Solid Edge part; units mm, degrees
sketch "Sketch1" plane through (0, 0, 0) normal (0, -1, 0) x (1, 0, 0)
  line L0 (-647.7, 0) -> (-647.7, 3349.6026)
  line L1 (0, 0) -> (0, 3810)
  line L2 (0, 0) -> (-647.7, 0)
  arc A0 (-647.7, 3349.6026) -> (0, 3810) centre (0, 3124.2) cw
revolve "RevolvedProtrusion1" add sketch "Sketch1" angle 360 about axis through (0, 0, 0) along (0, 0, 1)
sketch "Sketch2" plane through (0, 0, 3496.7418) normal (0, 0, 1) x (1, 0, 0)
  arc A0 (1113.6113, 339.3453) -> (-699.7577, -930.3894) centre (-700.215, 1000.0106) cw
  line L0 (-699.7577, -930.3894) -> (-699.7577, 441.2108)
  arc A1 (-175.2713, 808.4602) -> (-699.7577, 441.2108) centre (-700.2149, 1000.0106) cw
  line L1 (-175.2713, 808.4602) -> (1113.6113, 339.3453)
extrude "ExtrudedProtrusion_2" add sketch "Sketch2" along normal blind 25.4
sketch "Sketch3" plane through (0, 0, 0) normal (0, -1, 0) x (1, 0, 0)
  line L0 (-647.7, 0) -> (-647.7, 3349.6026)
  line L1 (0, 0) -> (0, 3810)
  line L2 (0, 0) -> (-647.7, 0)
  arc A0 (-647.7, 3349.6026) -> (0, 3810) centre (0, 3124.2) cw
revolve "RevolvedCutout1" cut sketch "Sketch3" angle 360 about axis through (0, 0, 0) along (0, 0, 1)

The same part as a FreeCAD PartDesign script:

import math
import FreeCAD as App
import Part
import Sketcher
from FreeCAD import Vector
Q = App.Units.Quantity

doc = App.newDocument("Part")
params = doc.addObject("Spreadsheet::Sheet", "Params")
for row, (alias, value) in enumerate([
    ("sketch1_radius", "27 in"),
    ("sketch1_height", "150 in"),
    ("sketch1_width", "25.5 in"),
    ("revolution_angle", "360 deg"),
    ("sketch2_radius", "76 in"),
    ("sketch2_radius2", "22 in"),
    ("pad1_length", "1 in"),
    ("sketch3_radius", "27 in"),
    ("sketch3_height", "150 in"),
    ("sketch3_width", "25.5 in"),
    ("groove_angle", "360 deg"),
], start=1):
    params.set(f"A{row}", alias)
    params.set(f"B{row}", "=" + value)
    params.setAlias(f"B{row}", alias)

body = doc.addObject("PartDesign::Body", "Body")

# Sketch on XZ plane
sketch1 = doc.addObject("Sketcher::SketchObject", "Sketch")
body.addObject(sketch1)
sketch1.AttachmentSupport = (doc.XZ_Plane, [""])
sketch1.MapMode = "FlatFace"
sketch1.addGeometry(Part.LineSegment(Vector(-648, 3350, 0), Vector(-648, 0, 0)), False)
sketch1.addGeometry(Part.LineSegment(Vector(-648, 0, 0), Vector(0, 0, 0)), False)
sketch1.addGeometry(Part.LineSegment(Vector(0, 0, 0), Vector(0, 3810, 0)), False)
sketch1.addGeometry(Part.ArcOfCircle(Part.Circle(Vector(0, 3124, 0), Vector(0, 0, 1), 686), math.radians(90), math.radians(161)), False)
sketch1.addConstraint(Sketcher.Constraint("Coincident", 0, 2, 1, 1))
sketch1.addConstraint(Sketcher.Constraint("Coincident", 1, 2, 2, 1))
sketch1.addConstraint(Sketcher.Constraint("Coincident", 2, 2, 3, 1))
sketch1.addConstraint(Sketcher.Constraint("Coincident", 3, 2, 0, 1))
sketch1.addConstraint(Sketcher.Constraint("Vertical", 0))
sketch1.addConstraint(Sketcher.Constraint("Horizontal", 1))
sketch1.addConstraint(Sketcher.Constraint("Vertical", 2))
sketch1.addConstraint(Sketcher.Constraint("Coincident", 1, 2, -1, 1))
sketch1.addConstraint(Sketcher.Constraint("PointOnObject", 3, 3, -2))
sketch1.addConstraint(Sketcher.Constraint("Radius", 3, Q("27 in")))
sketch1.addConstraint(Sketcher.Constraint("DistanceY", 2, 1, 2, 2, Q("150 in")))
sketch1.addConstraint(Sketcher.Constraint("DistanceX", 1, 1, 1, 2, Q("25.5 in")))
sketch1.setExpression("Constraints[9]", "Params.sketch1_radius")
sketch1.setExpression("Constraints[10]", "Params.sketch1_height")
sketch1.setExpression("Constraints[11]", "Params.sketch1_width")
revolution = doc.addObject("PartDesign::Revolution", "Revolution")
body.addObject(revolution)
revolution.Profile = sketch1
revolution.ReferenceAxis = (sketch1, ["V_Axis"])
revolution.setExpression("Angle", "Params.revolution_angle")

# Sketch on XY plane
sketch2 = doc.addObject("Sketcher::SketchObject", "Sketch001")
body.addObject(sketch2)
sketch2.AttachmentSupport = (doc.XY_Plane, [""])
sketch2.MapMode = "FlatFace"
sketch2.AttachmentOffset = App.Placement(Vector(0, 0, 137.667 * 25.4), App.Rotation())
sketch2.addGeometry(Part.ArcOfCircle(Part.Circle(Vector(-700, 1000, 0), Vector(0, 0, 1), 1930), math.radians(-90), math.radians(-20)), False)
sketch2.addGeometry(Part.LineSegment(Vector(1114, 339, 0), Vector(-175, 808, 0)), False)
sketch2.addGeometry(Part.ArcOfCircle(Part.Circle(Vector(-700, 1000, 0), Vector(0, 0, 1), 559), math.radians(-90), math.radians(-20)), False)
sketch2.addGeometry(Part.LineSegment(Vector(-700, 441, 0), Vector(-700, -930, 0)), False)
sketch2.addConstraint(Sketcher.Constraint("Coincident", 0, 2, 1, 1))
sketch2.addConstraint(Sketcher.Constraint("Coincident", 1, 2, 2, 2))
sketch2.addConstraint(Sketcher.Constraint("Coincident", 2, 1, 3, 1))
sketch2.addConstraint(Sketcher.Constraint("Coincident", 3, 2, 0, 1))
sketch2.addConstraint(Sketcher.Constraint("Vertical", 3))
sketch2.addConstraint(Sketcher.Constraint("Coincident", 2, 3, 0, 3))
sketch2.addConstraint(Sketcher.Constraint("Radius", 0, Q("76 in")))
sketch2.addConstraint(Sketcher.Constraint("Radius", 2, Q("22 in")))
sketch2.addConstraint(Sketcher.Constraint("Angle", 1, Q("160 deg")))
sketch2.addConstraint(Sketcher.Constraint("DistanceX", 2, 3, 3, 2, Q("0.018 in")))
sketch2.addConstraint(Sketcher.Constraint("DistanceY", -1, 1, 0, 3, Q("39.3705 in")))
sketch2.addConstraint(Sketcher.Constraint("DistanceX", 0, 3, -1, 1, 700.215))
sketch2.addConstraint(Sketcher.Constraint("DistanceX", 1, 2, -1, 1, 175.2713))
sketch2.setExpression("Constraints[6]", "Params.sketch2_radius")
sketch2.setExpression("Constraints[7]", "Params.sketch2_radius2")
pad1 = doc.addObject("PartDesign::Pad", "Pad")
body.addObject(pad1)
pad1.Profile = sketch2
pad1.setExpression("Length", "Params.pad1_length")

# Sketch on XZ plane
sketch3 = doc.addObject("Sketcher::SketchObject", "Sketch002")
body.addObject(sketch3)
sketch3.AttachmentSupport = (doc.XZ_Plane, [""])
sketch3.MapMode = "FlatFace"
sketch3.addGeometry(Part.LineSegment(Vector(-648, 3350, 0), Vector(-648, 0, 0)), False)
sketch3.addGeometry(Part.LineSegment(Vector(-648, 0, 0), Vector(0, 0, 0)), False)
sketch3.addGeometry(Part.LineSegment(Vector(0, 0, 0), Vector(0, 3810, 0)), False)
sketch3.addGeometry(Part.ArcOfCircle(Part.Circle(Vector(0, 3124, 0), Vector(0, 0, 1), 686), math.radians(90), math.radians(161)), False)
sketch3.addConstraint(Sketcher.Constraint("Coincident", 0, 2, 1, 1))
sketch3.addConstraint(Sketcher.Constraint("Coincident", 1, 2, 2, 1))
sketch3.addConstraint(Sketcher.Constraint("Coincident", 2, 2, 3, 1))
sketch3.addConstraint(Sketcher.Constraint("Coincident", 3, 2, 0, 1))
sketch3.addConstraint(Sketcher.Constraint("Vertical", 0))
sketch3.addConstraint(Sketcher.Constraint("Horizontal", 1))
sketch3.addConstraint(Sketcher.Constraint("Vertical", 2))
sketch3.addConstraint(Sketcher.Constraint("Coincident", 1, 2, -1, 1))
sketch3.addConstraint(Sketcher.Constraint("PointOnObject", 3, 3, -2))
sketch3.addConstraint(Sketcher.Constraint("Radius", 3, Q("27 in")))
sketch3.addConstraint(Sketcher.Constraint("DistanceY", 2, 1, 2, 2, Q("150 in")))
sketch3.addConstraint(Sketcher.Constraint("DistanceX", 1, 1, 1, 2, Q("25.5 in")))
sketch3.setExpression("Constraints[9]", "Params.sketch3_radius")
sketch3.setExpression("Constraints[10]", "Params.sketch3_height")
sketch3.setExpression("Constraints[11]", "Params.sketch3_width")
groove = doc.addObject("PartDesign::Groove", "Groove")
body.addObject(groove)
groove.Profile = sketch3
groove.ReferenceAxis = (sketch3, ["V_Axis"])
groove.setExpression("Angle", "Params.groove_angle")

doc.recompute()
